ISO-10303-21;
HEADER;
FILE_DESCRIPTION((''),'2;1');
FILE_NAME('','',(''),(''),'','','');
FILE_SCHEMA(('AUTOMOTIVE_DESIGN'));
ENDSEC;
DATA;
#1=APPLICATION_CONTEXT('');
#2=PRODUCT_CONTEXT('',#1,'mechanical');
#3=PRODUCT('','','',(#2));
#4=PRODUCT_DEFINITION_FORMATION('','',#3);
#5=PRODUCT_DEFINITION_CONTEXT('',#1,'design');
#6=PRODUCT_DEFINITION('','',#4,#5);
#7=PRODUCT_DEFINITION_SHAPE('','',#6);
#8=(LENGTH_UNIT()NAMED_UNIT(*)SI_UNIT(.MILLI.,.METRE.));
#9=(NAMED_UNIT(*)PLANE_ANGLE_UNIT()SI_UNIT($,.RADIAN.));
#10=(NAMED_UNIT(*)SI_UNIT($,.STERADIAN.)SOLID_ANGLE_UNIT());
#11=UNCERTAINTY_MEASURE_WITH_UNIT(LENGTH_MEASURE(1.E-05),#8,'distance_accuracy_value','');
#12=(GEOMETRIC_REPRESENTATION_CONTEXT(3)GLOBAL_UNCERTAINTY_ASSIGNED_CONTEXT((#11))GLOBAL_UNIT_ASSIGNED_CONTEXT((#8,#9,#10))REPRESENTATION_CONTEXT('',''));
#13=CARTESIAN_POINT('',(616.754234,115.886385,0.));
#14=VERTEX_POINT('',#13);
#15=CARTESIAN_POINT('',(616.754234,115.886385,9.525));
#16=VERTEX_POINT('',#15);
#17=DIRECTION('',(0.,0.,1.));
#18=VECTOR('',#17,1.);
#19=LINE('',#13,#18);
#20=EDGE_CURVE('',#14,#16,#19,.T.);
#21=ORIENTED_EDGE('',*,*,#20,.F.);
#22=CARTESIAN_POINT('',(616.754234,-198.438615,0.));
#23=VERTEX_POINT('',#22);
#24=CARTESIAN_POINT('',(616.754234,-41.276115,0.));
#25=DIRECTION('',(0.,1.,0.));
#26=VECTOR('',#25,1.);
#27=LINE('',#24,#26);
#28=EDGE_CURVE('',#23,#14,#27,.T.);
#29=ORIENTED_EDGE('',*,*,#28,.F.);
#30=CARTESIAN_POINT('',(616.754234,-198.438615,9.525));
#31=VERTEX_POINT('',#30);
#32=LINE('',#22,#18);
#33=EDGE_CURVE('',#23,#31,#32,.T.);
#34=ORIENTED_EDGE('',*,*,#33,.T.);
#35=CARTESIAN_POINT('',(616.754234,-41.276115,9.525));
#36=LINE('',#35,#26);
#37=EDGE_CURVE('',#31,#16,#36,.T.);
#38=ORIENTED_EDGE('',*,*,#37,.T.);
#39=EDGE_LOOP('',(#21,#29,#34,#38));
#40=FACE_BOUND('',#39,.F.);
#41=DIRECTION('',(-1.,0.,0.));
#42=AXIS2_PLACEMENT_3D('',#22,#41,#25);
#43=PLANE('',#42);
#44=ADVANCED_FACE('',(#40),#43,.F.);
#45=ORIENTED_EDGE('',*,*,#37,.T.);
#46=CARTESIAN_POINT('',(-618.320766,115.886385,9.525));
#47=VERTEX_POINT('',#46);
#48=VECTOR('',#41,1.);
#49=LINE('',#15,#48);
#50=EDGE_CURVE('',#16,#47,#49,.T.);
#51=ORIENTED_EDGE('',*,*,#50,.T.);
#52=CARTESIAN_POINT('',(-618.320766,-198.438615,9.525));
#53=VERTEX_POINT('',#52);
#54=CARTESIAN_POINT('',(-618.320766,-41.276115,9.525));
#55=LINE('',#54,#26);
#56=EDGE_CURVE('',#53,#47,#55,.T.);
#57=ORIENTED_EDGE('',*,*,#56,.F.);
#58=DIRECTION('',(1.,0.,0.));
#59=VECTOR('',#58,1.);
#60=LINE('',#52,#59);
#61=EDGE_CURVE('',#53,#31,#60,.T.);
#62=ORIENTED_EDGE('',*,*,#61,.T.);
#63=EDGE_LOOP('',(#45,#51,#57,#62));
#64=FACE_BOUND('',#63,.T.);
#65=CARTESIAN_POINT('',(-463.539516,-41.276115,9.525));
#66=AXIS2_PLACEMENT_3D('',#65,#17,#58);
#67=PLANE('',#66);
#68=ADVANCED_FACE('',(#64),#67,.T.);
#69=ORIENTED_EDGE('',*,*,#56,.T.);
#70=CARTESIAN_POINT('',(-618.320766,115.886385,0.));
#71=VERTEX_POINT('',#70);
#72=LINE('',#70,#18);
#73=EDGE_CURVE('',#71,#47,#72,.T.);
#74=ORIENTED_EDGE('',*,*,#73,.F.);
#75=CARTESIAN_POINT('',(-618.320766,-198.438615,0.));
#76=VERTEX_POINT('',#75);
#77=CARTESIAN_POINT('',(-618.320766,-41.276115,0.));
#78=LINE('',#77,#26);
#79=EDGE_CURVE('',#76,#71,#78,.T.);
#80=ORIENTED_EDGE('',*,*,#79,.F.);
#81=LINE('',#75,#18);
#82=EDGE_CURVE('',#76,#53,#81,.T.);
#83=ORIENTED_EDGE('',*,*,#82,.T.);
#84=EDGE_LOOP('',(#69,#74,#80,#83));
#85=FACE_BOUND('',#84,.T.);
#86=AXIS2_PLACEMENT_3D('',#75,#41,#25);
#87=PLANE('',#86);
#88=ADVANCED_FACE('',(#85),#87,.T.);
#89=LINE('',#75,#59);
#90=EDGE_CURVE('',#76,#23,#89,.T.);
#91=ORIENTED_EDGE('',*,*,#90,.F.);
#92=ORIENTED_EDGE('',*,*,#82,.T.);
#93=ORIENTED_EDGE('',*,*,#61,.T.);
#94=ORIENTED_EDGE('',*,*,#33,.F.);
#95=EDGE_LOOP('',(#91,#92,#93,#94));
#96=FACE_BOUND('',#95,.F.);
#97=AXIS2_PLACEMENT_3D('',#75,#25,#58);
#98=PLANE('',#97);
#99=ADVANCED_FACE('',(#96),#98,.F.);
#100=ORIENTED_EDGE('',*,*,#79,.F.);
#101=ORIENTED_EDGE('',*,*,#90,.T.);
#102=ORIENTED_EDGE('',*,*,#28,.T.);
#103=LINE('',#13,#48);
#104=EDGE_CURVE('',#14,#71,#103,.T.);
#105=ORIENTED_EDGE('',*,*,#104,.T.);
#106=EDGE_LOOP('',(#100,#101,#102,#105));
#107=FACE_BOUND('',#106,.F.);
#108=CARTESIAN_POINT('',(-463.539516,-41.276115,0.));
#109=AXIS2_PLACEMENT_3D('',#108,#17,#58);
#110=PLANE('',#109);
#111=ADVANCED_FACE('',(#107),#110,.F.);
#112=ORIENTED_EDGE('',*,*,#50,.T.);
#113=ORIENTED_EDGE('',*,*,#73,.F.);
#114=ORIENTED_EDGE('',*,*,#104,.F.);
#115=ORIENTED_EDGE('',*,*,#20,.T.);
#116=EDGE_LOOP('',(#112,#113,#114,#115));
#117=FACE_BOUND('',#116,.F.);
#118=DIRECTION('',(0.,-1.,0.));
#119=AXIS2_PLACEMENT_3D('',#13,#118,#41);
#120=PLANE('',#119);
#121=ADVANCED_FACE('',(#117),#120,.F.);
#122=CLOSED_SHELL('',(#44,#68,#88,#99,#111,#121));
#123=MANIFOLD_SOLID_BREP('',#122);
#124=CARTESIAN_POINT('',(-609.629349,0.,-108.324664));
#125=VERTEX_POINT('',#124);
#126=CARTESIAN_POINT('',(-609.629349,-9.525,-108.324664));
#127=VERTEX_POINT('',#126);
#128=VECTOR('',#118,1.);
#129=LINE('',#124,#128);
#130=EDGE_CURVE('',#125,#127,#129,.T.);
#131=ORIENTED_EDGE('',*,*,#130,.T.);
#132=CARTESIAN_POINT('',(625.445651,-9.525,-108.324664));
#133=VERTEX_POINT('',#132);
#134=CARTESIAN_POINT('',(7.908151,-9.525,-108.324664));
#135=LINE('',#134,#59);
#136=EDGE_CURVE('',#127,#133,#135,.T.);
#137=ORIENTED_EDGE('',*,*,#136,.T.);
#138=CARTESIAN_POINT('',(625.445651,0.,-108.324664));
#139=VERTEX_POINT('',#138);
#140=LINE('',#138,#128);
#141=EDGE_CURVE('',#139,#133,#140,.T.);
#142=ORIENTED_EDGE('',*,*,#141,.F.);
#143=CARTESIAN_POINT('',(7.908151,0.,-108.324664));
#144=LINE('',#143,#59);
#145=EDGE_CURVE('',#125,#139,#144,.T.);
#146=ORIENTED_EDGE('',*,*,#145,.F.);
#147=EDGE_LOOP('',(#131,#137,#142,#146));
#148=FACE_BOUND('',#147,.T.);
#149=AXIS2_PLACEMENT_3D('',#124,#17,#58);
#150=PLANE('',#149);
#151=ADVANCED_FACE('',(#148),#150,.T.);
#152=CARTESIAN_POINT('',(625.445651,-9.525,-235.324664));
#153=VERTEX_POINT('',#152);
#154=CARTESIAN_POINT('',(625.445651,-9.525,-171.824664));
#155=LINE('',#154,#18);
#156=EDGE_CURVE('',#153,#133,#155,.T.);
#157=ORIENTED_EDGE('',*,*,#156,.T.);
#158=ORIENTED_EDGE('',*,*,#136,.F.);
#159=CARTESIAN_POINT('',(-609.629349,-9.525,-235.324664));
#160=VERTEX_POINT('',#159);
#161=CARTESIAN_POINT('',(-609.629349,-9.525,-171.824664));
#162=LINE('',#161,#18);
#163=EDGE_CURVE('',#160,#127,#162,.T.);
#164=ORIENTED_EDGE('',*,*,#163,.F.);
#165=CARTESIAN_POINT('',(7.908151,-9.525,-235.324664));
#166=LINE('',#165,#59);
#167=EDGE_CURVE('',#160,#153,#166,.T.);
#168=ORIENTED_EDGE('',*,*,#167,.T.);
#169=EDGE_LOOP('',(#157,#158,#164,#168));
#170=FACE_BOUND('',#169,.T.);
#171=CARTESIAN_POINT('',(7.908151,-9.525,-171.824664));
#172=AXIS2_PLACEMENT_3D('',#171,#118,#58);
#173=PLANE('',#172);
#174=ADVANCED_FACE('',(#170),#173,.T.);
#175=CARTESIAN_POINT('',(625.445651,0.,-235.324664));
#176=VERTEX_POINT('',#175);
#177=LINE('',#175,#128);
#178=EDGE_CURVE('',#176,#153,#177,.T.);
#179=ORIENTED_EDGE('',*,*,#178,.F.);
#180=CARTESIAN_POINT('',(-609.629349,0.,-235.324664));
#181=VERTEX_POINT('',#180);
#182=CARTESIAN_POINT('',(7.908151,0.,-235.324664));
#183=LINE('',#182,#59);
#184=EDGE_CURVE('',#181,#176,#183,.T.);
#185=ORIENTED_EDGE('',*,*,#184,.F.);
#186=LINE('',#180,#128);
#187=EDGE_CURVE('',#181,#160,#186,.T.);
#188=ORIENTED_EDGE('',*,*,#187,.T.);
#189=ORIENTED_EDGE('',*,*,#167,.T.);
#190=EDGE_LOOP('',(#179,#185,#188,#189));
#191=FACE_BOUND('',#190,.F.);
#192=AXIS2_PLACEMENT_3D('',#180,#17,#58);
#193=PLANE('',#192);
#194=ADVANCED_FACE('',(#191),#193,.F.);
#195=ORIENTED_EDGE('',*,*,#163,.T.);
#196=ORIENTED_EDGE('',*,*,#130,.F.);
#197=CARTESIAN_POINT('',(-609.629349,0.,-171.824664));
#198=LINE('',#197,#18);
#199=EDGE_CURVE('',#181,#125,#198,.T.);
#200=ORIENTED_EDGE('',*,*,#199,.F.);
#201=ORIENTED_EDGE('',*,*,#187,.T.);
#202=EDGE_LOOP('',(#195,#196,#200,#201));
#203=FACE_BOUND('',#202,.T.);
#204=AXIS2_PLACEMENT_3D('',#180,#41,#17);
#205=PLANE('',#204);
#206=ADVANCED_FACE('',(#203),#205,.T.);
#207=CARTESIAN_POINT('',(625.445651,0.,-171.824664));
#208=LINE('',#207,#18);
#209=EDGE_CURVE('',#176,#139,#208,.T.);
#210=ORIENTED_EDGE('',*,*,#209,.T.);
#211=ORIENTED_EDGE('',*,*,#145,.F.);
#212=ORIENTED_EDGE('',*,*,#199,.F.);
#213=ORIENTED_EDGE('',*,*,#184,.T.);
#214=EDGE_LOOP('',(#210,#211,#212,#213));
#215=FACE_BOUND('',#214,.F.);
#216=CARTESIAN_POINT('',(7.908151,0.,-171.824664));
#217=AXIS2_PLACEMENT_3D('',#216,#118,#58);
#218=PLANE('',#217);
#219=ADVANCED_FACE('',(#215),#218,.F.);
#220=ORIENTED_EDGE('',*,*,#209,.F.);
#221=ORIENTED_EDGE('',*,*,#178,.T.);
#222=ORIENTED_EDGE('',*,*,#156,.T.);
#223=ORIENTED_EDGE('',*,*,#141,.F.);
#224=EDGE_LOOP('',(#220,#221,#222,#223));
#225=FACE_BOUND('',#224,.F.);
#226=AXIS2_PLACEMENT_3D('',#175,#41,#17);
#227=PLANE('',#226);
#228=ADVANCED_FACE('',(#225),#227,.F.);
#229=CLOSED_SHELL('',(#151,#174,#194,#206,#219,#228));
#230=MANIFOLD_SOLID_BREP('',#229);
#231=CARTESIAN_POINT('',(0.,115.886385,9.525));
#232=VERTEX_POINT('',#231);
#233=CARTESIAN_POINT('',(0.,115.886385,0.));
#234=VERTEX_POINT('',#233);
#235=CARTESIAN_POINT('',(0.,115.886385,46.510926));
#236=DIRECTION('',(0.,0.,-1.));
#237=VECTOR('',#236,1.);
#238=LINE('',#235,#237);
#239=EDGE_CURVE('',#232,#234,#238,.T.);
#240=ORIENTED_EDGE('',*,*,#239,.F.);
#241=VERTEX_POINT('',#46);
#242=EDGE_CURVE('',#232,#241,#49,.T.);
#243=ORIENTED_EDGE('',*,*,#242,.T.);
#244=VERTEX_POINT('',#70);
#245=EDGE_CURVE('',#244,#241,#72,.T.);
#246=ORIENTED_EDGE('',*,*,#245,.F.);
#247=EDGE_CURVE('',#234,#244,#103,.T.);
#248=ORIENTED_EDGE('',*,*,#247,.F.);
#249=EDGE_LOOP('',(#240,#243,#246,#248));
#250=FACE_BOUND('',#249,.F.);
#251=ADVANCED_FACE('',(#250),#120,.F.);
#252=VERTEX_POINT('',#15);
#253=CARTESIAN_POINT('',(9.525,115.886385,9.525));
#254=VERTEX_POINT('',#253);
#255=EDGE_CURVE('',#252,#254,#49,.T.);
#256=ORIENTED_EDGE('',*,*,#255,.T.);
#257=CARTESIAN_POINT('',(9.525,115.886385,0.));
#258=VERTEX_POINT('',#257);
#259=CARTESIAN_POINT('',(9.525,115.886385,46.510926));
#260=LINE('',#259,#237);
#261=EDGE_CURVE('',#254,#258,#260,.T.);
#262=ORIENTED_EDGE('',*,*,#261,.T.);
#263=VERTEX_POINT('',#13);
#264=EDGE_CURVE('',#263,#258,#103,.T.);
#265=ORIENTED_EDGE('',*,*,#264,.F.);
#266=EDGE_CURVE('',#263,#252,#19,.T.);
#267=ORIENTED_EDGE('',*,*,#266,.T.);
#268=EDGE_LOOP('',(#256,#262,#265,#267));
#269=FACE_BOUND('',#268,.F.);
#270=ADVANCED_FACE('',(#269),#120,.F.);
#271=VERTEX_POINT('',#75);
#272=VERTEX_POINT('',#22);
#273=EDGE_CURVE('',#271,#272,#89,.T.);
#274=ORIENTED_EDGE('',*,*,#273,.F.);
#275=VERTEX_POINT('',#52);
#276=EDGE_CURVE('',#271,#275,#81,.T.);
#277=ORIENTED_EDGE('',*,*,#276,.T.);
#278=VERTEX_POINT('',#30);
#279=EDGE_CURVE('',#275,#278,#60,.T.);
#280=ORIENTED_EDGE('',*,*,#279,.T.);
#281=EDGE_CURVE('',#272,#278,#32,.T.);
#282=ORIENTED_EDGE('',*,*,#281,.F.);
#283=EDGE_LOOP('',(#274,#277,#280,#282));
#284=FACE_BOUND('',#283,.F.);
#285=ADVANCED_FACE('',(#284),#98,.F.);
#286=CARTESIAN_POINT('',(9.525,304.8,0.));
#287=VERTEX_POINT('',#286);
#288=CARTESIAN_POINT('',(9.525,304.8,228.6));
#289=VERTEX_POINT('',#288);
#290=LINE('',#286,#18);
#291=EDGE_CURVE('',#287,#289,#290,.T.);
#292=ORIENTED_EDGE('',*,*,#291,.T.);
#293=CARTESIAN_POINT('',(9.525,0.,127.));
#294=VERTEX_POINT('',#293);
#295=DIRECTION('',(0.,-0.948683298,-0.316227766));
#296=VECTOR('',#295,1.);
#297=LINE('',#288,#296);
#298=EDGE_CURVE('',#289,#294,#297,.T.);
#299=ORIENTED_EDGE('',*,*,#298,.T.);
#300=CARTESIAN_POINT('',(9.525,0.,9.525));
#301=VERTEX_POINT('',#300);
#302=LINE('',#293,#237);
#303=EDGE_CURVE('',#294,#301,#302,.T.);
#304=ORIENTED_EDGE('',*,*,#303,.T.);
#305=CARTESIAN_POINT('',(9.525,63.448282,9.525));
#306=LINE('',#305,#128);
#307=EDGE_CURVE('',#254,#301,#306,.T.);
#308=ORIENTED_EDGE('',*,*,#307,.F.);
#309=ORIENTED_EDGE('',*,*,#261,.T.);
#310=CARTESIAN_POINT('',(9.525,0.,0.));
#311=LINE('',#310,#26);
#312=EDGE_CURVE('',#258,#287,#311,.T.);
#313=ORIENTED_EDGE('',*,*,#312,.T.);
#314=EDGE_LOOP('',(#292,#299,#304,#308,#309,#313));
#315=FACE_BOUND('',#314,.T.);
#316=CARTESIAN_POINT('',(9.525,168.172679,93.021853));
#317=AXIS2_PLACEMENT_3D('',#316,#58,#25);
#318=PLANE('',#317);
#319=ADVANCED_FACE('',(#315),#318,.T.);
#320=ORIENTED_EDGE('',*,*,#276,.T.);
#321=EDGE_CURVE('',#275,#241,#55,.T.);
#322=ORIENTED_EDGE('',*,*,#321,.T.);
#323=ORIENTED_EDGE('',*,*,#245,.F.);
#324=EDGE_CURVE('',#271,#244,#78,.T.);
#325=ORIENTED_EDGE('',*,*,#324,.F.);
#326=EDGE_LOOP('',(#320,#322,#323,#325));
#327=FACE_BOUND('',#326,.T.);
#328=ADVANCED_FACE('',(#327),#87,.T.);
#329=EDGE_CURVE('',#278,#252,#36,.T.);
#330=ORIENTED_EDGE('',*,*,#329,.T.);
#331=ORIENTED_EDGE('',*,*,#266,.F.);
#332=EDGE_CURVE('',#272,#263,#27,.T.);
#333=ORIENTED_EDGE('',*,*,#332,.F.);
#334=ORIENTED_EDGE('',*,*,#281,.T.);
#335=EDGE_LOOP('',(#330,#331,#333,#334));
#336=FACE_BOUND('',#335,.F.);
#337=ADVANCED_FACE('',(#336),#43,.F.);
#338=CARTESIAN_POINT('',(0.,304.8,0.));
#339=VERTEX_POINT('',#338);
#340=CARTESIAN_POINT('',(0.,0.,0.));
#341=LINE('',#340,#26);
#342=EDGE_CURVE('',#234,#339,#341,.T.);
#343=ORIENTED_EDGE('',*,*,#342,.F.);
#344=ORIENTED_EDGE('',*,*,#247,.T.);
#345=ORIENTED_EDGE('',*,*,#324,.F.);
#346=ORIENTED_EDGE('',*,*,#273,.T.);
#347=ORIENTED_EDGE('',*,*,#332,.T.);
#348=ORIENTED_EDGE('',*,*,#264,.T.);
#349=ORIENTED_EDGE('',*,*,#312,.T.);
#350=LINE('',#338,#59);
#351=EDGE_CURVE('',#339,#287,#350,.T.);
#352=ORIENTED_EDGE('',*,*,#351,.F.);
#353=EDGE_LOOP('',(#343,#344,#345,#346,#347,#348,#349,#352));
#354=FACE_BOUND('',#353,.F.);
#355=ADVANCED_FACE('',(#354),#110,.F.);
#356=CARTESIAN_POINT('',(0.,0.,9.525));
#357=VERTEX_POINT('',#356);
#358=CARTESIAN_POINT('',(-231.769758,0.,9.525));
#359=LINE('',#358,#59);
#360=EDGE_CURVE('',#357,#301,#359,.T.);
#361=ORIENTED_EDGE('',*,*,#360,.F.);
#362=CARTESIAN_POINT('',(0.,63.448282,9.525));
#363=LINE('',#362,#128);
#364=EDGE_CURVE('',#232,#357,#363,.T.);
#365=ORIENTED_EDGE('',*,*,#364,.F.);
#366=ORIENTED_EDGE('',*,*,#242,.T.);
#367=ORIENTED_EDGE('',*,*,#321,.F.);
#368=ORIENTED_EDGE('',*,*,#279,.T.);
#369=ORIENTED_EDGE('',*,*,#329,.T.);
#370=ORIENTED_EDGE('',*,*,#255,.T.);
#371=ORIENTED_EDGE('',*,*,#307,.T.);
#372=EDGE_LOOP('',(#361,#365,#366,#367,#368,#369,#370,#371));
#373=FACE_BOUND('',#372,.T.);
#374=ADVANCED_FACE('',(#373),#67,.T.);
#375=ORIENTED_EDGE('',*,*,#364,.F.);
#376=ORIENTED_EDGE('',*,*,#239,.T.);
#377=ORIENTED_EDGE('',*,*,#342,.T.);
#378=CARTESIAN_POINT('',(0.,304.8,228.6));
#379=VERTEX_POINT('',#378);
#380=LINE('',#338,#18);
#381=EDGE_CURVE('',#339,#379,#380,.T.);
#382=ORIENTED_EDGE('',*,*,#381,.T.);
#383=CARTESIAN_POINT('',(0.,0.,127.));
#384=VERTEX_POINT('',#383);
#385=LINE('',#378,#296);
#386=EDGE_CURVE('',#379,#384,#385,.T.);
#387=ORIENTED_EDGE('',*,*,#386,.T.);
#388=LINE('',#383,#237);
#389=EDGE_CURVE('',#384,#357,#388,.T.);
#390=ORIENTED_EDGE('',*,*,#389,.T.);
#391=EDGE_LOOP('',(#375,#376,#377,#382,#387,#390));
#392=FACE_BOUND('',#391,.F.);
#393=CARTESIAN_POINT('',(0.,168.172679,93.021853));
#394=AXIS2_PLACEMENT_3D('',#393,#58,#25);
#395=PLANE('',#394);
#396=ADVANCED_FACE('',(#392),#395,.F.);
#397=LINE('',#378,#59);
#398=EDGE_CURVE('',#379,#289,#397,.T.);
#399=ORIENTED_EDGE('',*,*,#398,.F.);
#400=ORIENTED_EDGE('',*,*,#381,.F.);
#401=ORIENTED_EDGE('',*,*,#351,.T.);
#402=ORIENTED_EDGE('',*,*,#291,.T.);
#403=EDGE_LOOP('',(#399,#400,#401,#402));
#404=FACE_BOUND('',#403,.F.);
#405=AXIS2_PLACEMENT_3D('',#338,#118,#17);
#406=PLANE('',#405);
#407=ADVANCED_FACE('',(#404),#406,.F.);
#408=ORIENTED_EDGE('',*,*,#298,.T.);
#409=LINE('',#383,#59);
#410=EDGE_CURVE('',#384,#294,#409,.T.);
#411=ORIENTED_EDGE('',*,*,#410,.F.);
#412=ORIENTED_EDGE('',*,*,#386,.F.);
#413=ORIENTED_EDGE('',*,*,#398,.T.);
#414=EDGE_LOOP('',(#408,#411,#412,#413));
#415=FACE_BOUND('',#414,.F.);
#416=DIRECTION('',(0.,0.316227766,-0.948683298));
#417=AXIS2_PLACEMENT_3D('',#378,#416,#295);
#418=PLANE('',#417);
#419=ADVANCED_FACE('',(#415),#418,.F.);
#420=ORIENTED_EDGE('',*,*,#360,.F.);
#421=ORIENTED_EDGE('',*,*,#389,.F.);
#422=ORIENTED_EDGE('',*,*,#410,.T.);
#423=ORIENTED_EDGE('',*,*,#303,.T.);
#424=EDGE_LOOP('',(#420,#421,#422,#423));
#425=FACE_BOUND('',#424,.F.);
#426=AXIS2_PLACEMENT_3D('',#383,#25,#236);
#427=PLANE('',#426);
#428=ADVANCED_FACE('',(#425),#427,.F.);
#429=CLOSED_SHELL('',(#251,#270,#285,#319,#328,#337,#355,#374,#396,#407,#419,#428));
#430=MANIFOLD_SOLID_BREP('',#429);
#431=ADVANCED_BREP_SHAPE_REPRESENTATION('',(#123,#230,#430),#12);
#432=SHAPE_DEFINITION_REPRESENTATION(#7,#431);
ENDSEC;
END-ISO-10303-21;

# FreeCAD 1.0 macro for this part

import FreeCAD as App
import Part
import Sketcher
Q = App.Units.Quantity

doc = App.newDocument("Part")
body = doc.addObject("PartDesign::Body", "Body")

sketch1 = doc.addObject("Sketcher::SketchObject", "Sketch")
body.addObject(sketch1)
sketch1.AttachmentSupport = (doc.YZ_Plane, [""])
sketch1.MapMode = "FlatFace"
sketch1.addGeometry([
    Part.LineSegment(App.Vector(0, 127, 0), App.Vector(0, 0, 0)),
    Part.LineSegment(App.Vector(0, 0, 0), App.Vector(304.8, 0, 0)),
    Part.LineSegment(App.Vector(304.8, 0, 0), App.Vector(304.8, 228.6, 0)),
    Part.LineSegment(App.Vector(304.8, 228.6, 0), App.Vector(0, 127, 0)),
], False)
sketch1.addConstraint([
    Sketcher.Constraint("Coincident", 0, 2, 1, 1),
    Sketcher.Constraint("Coincident", 1, 2, 2, 1),
    Sketcher.Constraint("Coincident", 2, 2, 3, 1),
    Sketcher.Constraint("Coincident", 3, 2, 0, 1),
    Sketcher.Constraint("Vertical", 0),
    Sketcher.Constraint("Horizontal", 1),
    Sketcher.Constraint("Vertical", 2),
    Sketcher.Constraint("Coincident", 0, 2, -1, 1),
    Sketcher.Constraint("DistanceX", 1, 1, 1, 2, Q("12 in")),
    Sketcher.Constraint("DistanceY", 0, 2, 0, 1, Q("5 in")),
    Sketcher.Constraint("DistanceY", 2, 1, 2, 2, Q("9 in")),
])
pad1 = doc.addObject("PartDesign::Pad", "Pad")
body.addObject(pad1)
pad1.Profile = sketch1
pad1.Length = Q("0.375 in")

sketch2 = doc.addObject("Sketcher::SketchObject", "Sketch001")
body.addObject(sketch2)
sketch2.AttachmentSupport = (doc.XY_Plane, [""])
sketch2.MapMode = "FlatFace"
sketch2.addGeometry([
    Part.LineSegment(App.Vector(-618.320766, 115.886385, 0), App.Vector(-618.320766, -198.438615, 0)),
    Part.LineSegment(App.Vector(-618.320766, -198.438615, 0), App.Vector(616.754234, -198.438615, 0)),
    Part.LineSegment(App.Vector(616.754234, -198.438615, 0), App.Vector(616.754234, 115.886385, 0)),
    Part.LineSegment(App.Vector(616.754234, 115.886385, 0), App.Vector(-618.320766, 115.886385, 0)),
], False)
sketch2.addConstraint([
    Sketcher.Constraint("Coincident", 0, 2, 1, 1),
    Sketcher.Constraint("Coincident", 1, 2, 2, 1),
    Sketcher.Constraint("Coincident", 2, 2, 3, 1),
    Sketcher.Constraint("Coincident", 3, 2, 0, 1),
    Sketcher.Constraint("Vertical", 0),
    Sketcher.Constraint("Horizontal", 1),
    Sketcher.Constraint("Vertical", 2),
    Sketcher.Constraint("Horizontal", 3),
    Sketcher.Constraint("DistanceX", 1, 1, 1, 2, Q("48.625 in")),
    Sketcher.Constraint("DistanceY", 0, 2, 0, 1, Q("12.375 in")),
    Sketcher.Constraint("DistanceX", 0, 2, -1, 1, Q("618.320766 mm")),
    Sketcher.Constraint("DistanceY", 0, 2, -1, 1, Q("198.438615 mm")),
])
pad2 = doc.addObject("PartDesign::Pad", "Pad001")
body.addObject(pad2)
pad2.Profile = sketch2
pad2.Length = Q("0.375 in")
body2 = doc.addObject("PartDesign::Body", "Body001")

sketch3 = doc.addObject("Sketcher::SketchObject", "Sketch002")
body2.addObject(sketch3)
sketch3.AttachmentSupport = (doc.getObject("XZ_Plane001"), [""])
sketch3.MapMode = "FlatFace"
sketch3.addGeometry([
    Part.LineSegment(App.Vector(-609.629349, -108.324664, 0), App.Vector(-609.629349, -235.324664, 0)),
    Part.LineSegment(App.Vector(-609.629349, -235.324664, 0), App.Vector(625.445651, -235.324664, 0)),
    Part.LineSegment(App.Vector(625.445651, -235.324664, 0), App.Vector(625.445651, -108.324664, 0)),
    Part.LineSegment(App.Vector(625.445651, -108.324664, 0), App.Vector(-609.629349, -108.324664, 0)),
], False)
sketch3.addConstraint([
    Sketcher.Constraint("Coincident", 0, 2, 1, 1),
    Sketcher.Constraint("Coincident", 1, 2, 2, 1),
    Sketcher.Constraint("Coincident", 2, 2, 3, 1),
    Sketcher.Constraint("Coincident", 3, 2, 0, 1),
    Sketcher.Constraint("Vertical", 0),
    Sketcher.Constraint("Horizontal", 1),
    Sketcher.Constraint("Vertical", 2),
    Sketcher.Constraint("Horizontal", 3),
    Sketcher.Constraint("DistanceY", 0, 2, 0, 1, Q("5 in")),
    Sketcher.Constraint("DistanceX", 1, 1, 1, 2, Q("48.625 in")),
    Sketcher.Constraint("DistanceX", 0, 2, -1, 1, Q("609.629349 mm")),
    Sketcher.Constraint("DistanceY", 0, 2, -1, 1, Q("235.324664 mm")),
])
pad3 = doc.addObject("PartDesign::Pad", "Pad002")
body2.addObject(pad3)
pad3.Profile = sketch3
pad3.Length = Q("0.375 in")
body3 = doc.addObject("PartDesign::Body", "Body002")

sketch4 = doc.addObject("Sketcher::SketchObject", "Sketch003")
body3.addObject(sketch4)
sketch4.AttachmentSupport = (doc.getObject("XY_Plane002"), [""])
sketch4.MapMode = "FlatFace"
sketch4.addGeometry([
    Part.LineSegment(App.Vector(-618.320766, 115.886385, 0), App.Vector(-618.320766, -198.438615, 0)),
    Part.LineSegment(App.Vector(-618.320766, -198.438615, 0), App.Vector(616.754234, -198.438615, 0)),
    Part.LineSegment(App.Vector(616.754234, -198.438615, 0), App.Vector(616.754234, 115.886385, 0)),
    Part.LineSegment(App.Vector(616.754234, 115.886385, 0), App.Vector(-618.320766, 115.886385, 0)),
], False)
sketch4.addConstraint([
    Sketcher.Constraint("Coincident", 0, 2, 1, 1),
    Sketcher.Constraint("Coincident", 1, 2, 2, 1),
    Sketcher.Constraint("Coincident", 2, 2, 3, 1),
    Sketcher.Constraint("Coincident", 3, 2, 0, 1),
    Sketcher.Constraint("Vertical", 0),
    Sketcher.Constraint("Horizontal", 1),
    Sketcher.Constraint("Vertical", 2),
    Sketcher.Constraint("Horizontal", 3),
    Sketcher.Constraint("DistanceX", 1, 1, 1, 2, Q("48.625 in")),
    Sketcher.Constraint("DistanceY", 0, 2, 0, 1, Q("12.375 in")),
    Sketcher.Constraint("DistanceX", 0, 2, -1, 1, Q("618.320766 mm")),
    Sketcher.Constraint("DistanceY", 0, 2, -1, 1, Q("198.438615 mm")),
])
pad4 = doc.addObject("PartDesign::Pad", "Pad003")
body3.addObject(pad4)
pad4.Profile = sketch4
pad4.Length = Q("0.375 in")

doc.recompute()
